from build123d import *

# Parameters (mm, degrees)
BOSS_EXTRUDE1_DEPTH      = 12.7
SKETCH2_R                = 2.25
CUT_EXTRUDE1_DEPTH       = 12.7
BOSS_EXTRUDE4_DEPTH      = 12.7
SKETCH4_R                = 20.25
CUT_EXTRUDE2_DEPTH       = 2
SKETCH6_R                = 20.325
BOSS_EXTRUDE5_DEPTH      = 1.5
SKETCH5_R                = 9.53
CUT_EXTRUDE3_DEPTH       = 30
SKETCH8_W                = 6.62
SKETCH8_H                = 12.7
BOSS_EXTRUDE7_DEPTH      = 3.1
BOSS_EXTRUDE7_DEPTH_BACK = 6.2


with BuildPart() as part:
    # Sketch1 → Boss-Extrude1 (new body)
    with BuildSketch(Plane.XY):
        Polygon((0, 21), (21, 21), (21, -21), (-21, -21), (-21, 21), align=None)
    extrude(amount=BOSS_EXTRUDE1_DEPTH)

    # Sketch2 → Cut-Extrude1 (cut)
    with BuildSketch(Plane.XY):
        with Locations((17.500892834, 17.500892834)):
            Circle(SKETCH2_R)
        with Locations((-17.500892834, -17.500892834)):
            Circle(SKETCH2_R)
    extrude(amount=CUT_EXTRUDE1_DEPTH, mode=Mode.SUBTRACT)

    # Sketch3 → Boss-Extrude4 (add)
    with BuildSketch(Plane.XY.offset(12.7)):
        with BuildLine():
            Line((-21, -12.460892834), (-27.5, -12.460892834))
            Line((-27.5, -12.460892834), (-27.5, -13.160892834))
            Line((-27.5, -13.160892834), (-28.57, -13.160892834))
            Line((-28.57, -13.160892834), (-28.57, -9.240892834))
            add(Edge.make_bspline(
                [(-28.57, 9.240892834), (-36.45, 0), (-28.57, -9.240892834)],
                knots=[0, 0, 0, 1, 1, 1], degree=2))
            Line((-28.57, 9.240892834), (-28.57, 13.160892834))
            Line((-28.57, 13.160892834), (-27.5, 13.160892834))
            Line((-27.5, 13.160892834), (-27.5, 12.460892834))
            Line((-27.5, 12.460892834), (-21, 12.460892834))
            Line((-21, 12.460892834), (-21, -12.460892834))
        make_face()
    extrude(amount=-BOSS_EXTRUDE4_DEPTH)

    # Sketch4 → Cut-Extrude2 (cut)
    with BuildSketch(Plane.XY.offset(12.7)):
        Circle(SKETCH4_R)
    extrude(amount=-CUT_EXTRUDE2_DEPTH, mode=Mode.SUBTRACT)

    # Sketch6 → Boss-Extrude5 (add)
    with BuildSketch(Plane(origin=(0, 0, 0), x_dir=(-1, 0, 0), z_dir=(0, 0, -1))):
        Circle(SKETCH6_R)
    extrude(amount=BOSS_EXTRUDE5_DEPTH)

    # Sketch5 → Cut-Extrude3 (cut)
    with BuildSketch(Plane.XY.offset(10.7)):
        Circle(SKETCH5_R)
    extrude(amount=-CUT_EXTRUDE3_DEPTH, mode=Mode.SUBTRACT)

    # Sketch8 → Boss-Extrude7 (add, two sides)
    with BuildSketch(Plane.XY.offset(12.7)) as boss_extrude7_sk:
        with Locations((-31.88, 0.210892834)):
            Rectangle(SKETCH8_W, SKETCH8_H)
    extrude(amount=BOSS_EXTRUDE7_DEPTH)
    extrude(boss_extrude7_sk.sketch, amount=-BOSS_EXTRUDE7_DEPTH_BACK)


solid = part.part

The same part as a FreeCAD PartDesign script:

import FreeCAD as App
import Part
import Sketcher
from FreeCAD import Vector


def add_polygon(sketch, points):
    """Adds a closed chain of lines whose ends are joined by coincident constraints."""
    first, n = sketch.GeometryCount, len(points)
    for a, b in zip(points, points[1:] + points[:1]):
        sketch.addGeometry(Part.LineSegment(App.Vector(*a, 0), App.Vector(*b, 0)), False)
    for i in range(n):
        sketch.addConstraint(Sketcher.Constraint("Coincident", first + i, 2, first + (i + 1) % n, 1))

doc = App.newDocument("Part")
body = doc.addObject("PartDesign::Body", "Body")

# Sketch on XY plane
sketch1 = body.newObject("Sketcher::SketchObject", "Sketch")
sketch1.AttachmentSupport = (doc.getObject("XY_Plane"), [""])
sketch1.MapMode = "FlatFace"
add_polygon(sketch1, [(21, 21), (-21, 21), (-21, -21), (21, -21)])  # lines 0-3
sketch1.addConstraint(Sketcher.Constraint("Horizontal", 0))
sketch1.addConstraint(Sketcher.Constraint("Vertical", 1))
sketch1.addConstraint(Sketcher.Constraint("Horizontal", 2))
sketch1.addConstraint(Sketcher.Constraint("Vertical", 3))
sketch1.addConstraint(Sketcher.Constraint("Symmetric", 0, 2, 2, 2, -1, 1))
sketch1.addConstraint(Sketcher.Constraint("Equal", 2, 1))
sketch1.addConstraint(Sketcher.Constraint("DistanceX", 0, 2, 0, 1, 42.0))
pad1 = body.newObject("PartDesign::Pad", "Pad")
pad1.Profile = sketch1
pad1.Length = 12.7

# Sketch on XY plane
sketch2 = body.newObject("Sketcher::SketchObject", "Sketch001")
sketch2.AttachmentSupport = (doc.getObject("XY_Plane"), [""])
sketch2.MapMode = "FlatFace"
sketch2.addGeometry(Part.Circle(Vector(17.5, 17.5, 0), Vector(0, 0, 1), 2.2), False)
sketch2.addGeometry(Part.Circle(Vector(-17.5, -17.5, 0), Vector(0, 0, 1), 2.2), False)
sketch2.addConstraint(Sketcher.Constraint("Equal", 0, 1))
sketch2.addConstraint(Sketcher.Constraint("Symmetric", 0, 3, 1, 3, -1, 1))
sketch2.addConstraint(Sketcher.Constraint("Diameter", 0, 4.5))
sketch2.addConstraint(Sketcher.Constraint("DistanceX", -1, 1, 0, 3, 17.500893))
sketch2.addConstraint(Sketcher.Constraint("DistanceY", -1, 1, 0, 3, 17.500893))
pocket1 = body.newObject("PartDesign::Pocket", "Pocket")
pocket1.Profile = sketch2
pocket1.Length = 12.7
pocket1.Reversed = True

# Sketch on XY plane
sketch3 = body.newObject("Sketcher::SketchObject", "Sketch002")
sketch3.AttachmentSupport = (doc.getObject("XY_Plane"), [""])
sketch3.MapMode = "FlatFace"
sketch3.AttachmentOffset = App.Placement(Vector(0, 0, 12.7), App.Rotation())
sketch3.addGeometry(Part.LineSegment(Vector(-27.5, -12.460893, 0), Vector(-21, -12.460893, 0)), False)
sketch3.addGeometry(Part.LineSegment(Vector(-21, -12.460893, 0), Vector(-21, 12.460893, 0)), False)
sketch3.addGeometry(Part.LineSegment(Vector(-21, 12.460893, 0), Vector(-27.5, 12.460893, 0)), False)
sketch3.addGeometry(Part.LineSegment(Vector(-27.5, 12.460893, 0), Vector(-27.5, 13.160893, 0)), False)
sketch3.addGeometry(Part.LineSegment(Vector(-27.5, 13.160893, 0), Vector(-28.57, 13.160893, 0)), False)
sketch3.addGeometry(Part.LineSegment(Vector(-28.57, 13.160893, 0), Vector(-28.57, 9.240893, 0)), False)
sketch3.addGeometry(Part.BSplineCurve([Vector(-28.57, 9.240893, 0), Vector(-36.45, 0, 0), Vector(-28.57, -9.240893, 0)], [3, 3], [0, 1], False, 2, [1, 1, 1], False), False)
sketch3.addGeometry(Part.LineSegment(Vector(-28.57, -9.240893, 0), Vector(-28.57, -13.160893, 0)), False)
sketch3.addGeometry(Part.LineSegment(Vector(-28.57, -13.160893, 0), Vector(-27.5, -13.160893, 0)), False)
sketch3.addGeometry(Part.LineSegment(Vector(-27.5, -13.160893, 0), Vector(-27.5, -12.460893, 0)), False)
sketch3.addConstraint(Sketcher.Constraint("Block", 6))
sketch3.addConstraint(Sketcher.Constraint("Coincident", 0, 2, 1, 1))
sketch3.addConstraint(Sketcher.Constraint("Coincident", 1, 2, 2, 1))
sketch3.addConstraint(Sketcher.Constraint("Coincident", 2, 2, 3, 1))
sketch3.addConstraint(Sketcher.Constraint("Coincident", 3, 2, 4, 1))
sketch3.addConstraint(Sketcher.Constraint("Coincident", 4, 2, 5, 1))
sketch3.addConstraint(Sketcher.Constraint("Coincident", 5, 2, 6, 1))
sketch3.addConstraint(Sketcher.Constraint("Coincident", 6, 2, 7, 1))
sketch3.addConstraint(Sketcher.Constraint("Coincident", 7, 2, 8, 1))
sketch3.addConstraint(Sketcher.Constraint("Coincident", 8, 2, 9, 1))
sketch3.addConstraint(Sketcher.Constraint("Coincident", 9, 2, 0, 1))
sketch3.addConstraint(Sketcher.Constraint("Horizontal", 0))
sketch3.addConstraint(Sketcher.Constraint("Vertical", 1))
sketch3.addConstraint(Sketcher.Constraint("Horizontal", 2))
sketch3.addConstraint(Sketcher.Constraint("Vertical", 3))
sketch3.addConstraint(Sketcher.Constraint("Horizontal", 4))
sketch3.addConstraint(Sketcher.Constraint("Vertical", 5))
sketch3.addConstraint(Sketcher.Constraint("Vertical", 7))
sketch3.addConstraint(Sketcher.Constraint("Horizontal", 8))
sketch3.addConstraint(Sketcher.Constraint("Vertical", 9))
sketch3.addConstraint(Sketcher.Constraint("Symmetric", 3, 2, 8, 2, -1))
sketch3.addConstraint(Sketcher.Constraint("Equal", 3, 9))
sketch3.addConstraint(Sketcher.Constraint("DistanceX", 0, 1, 0, 2, 6.5))
sketch3.addConstraint(Sketcher.Constraint("DistanceY", 3, 1, 3, 2, 0.7))
sketch3.addConstraint(Sketcher.Constraint("DistanceX", 0, 2, -1, 1, 21.0))
sketch3.addConstraint(Sketcher.Constraint("DistanceY", 5, 2, 5, 1, 3.92))
pad2 = body.newObject("PartDesign::Pad", "Pad001")
pad2.Profile = sketch3
pad2.Length = 12.7
pad2.Reversed = True

# Sketch on XY plane
sketch4 = body.newObject("Sketcher::SketchObject", "Sketch003")
sketch4.AttachmentSupport = (doc.getObject("XY_Plane"), [""])
sketch4.MapMode = "FlatFace"
sketch4.AttachmentOffset = App.Placement(Vector(0, 0, 12.7), App.Rotation())
sketch4.addGeometry(Part.Circle(Vector(0, 0, 0), Vector(0, 0, 1), 20), False)
sketch4.addConstraint(Sketcher.Constraint("Coincident", 0, 3, -1, 1))
sketch4.addConstraint(Sketcher.Constraint("Diameter", 0, 40.5))
pocket2 = body.newObject("PartDesign::Pocket", "Pocket001")
pocket2.Profile = sketch4
pocket2.Length = 2

# Sketch on XY plane
sketch5 = body.newObject("Sketcher::SketchObject", "Sketch004")
sketch5.AttachmentSupport = (doc.getObject("XY_Plane"), [""])
sketch5.MapMode = "FlatFace"
sketch5.addGeometry(Part.Circle(Vector(0, 0, 0), Vector(0, 0, 1), 20), False)
sketch5.addConstraint(Sketcher.Constraint("Coincident", 0, 3, -1, 1))
sketch5.addConstraint(Sketcher.Constraint("Diameter", 0, 40.65))
pad3 = body.newObject("PartDesign::Pad", "Pad002")
pad3.Profile = sketch5
pad3.Length = 1.5
pad3.Reversed = True

# Sketch on XY plane
sketch6 = body.newObject("Sketcher::SketchObject", "Sketch005")
sketch6.AttachmentSupport = (doc.getObject("XY_Plane"), [""])
sketch6.MapMode = "FlatFace"
sketch6.AttachmentOffset = App.Placement(Vector(0, 0, 10.7), App.Rotation())
sketch6.addGeometry(Part.Circle(Vector(0, 0, 0), Vector(0, 0, 1), 10), False)
sketch6.addConstraint(Sketcher.Constraint("Coincident", 0, 3, -1, 1))
sketch6.addConstraint(Sketcher.Constraint("Diameter", 0, 19.06))
pocket3 = body.newObject("PartDesign::Pocket", "Pocket002")
pocket3.Profile = sketch6
pocket3.Length = 30

# Sketch on XY plane
sketch7 = body.newObject("Sketcher::SketchObject", "Sketch006")
sketch7.AttachmentSupport = (doc.getObject("XY_Plane"), [""])
sketch7.MapMode = "FlatFace"
sketch7.AttachmentOffset = App.Placement(Vector(0, 0, 12.7), App.Rotation())
add_polygon(sketch7, [(-35, 7), (-35, -6), (-29, -6), (-29, 7)])  # lines 0-3
sketch7.addConstraint(Sketcher.Constraint("Vertical", 0))
sketch7.addConstraint(Sketcher.Constraint("Horizontal", 1))
sketch7.addConstraint(Sketcher.Constraint("Vertical", 2))
sketch7.addConstraint(Sketcher.Constraint("Horizontal", 3))
sketch7.addConstraint(Sketcher.Constraint("DistanceY", 0, 2, 0, 1, 12.7))
sketch7.addConstraint(Sketcher.Constraint("DistanceX", 1, 1, 1, 2, 6.62))
sketch7.addConstraint(Sketcher.Constraint("DistanceX", 0, 2, -1, 1, 35.19))
sketch7.addConstraint(Sketcher.Constraint("DistanceY", 0, 2, -1, 1, 6.139107))
pad4 = body.newObject("PartDesign::Pad", "Pad003")
pad4.Profile = sketch7
pad4.Type = "TwoLengths"
pad4.Length = 3.1
pad4.Length2 = 6.2

doc.recompute()
